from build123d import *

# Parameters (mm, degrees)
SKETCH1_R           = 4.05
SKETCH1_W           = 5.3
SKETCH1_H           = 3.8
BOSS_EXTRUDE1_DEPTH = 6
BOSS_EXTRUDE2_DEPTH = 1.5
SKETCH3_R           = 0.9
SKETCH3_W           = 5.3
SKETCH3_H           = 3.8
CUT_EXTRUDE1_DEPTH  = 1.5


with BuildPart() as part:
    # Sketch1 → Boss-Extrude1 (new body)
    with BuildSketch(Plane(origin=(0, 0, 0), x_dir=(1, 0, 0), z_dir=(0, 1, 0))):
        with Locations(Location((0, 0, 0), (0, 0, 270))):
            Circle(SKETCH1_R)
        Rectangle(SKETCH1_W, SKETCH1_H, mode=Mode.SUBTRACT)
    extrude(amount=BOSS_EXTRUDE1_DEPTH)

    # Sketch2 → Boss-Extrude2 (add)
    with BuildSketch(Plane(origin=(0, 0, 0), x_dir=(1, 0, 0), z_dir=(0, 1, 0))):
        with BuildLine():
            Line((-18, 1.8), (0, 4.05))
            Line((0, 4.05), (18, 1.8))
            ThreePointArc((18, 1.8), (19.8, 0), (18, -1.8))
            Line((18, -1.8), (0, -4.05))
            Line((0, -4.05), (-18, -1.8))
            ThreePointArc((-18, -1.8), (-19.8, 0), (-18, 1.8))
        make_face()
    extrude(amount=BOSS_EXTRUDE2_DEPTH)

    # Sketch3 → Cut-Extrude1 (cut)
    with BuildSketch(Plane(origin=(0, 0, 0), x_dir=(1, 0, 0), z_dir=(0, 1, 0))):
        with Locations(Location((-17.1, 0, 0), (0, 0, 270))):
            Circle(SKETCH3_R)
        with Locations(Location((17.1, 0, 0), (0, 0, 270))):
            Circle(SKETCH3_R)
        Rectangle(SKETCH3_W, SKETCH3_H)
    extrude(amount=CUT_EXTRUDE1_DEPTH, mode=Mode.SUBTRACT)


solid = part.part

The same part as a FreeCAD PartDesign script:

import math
import FreeCAD as App
import Part
import Sketcher

V = App.Vector

doc = App.newDocument("Part")
params = doc.addObject("Spreadsheet::Sheet", "Params")
for row, (alias, value) in enumerate([
    ("sketch1_diameter", "8.1 mm"),
    ("sketch1_width", "5.3 mm"),
    ("sketch1_height", "3.8 mm"),
    ("pad1_length", "6 mm"),
    ("sketch2_radius", "1.8 mm"),
    ("pad2_length", "1.5 mm"),
    ("sketch3_diameter", "1.8 mm"),
    ("sketch3_width", "5.3 mm"),
    ("sketch3_height", "3.8 mm"),
    ("pocket1_length", "1.5 mm"),
], start=1):
    params.set(f"A{row}", alias)
    params.set(f"B{row}", "=" + value)
    params.setAlias(f"B{row}", alias)

body = doc.addObject("PartDesign::Body", "Body")

# Sketch on XZ plane
sketch1 = body.newObject("Sketcher::SketchObject", "Sketch")
sketch1.AttachmentSupport = (doc.getObject("XZ_Plane"), [""])
sketch1.MapMode = "FlatFace"
sketch1.addGeometry(Part.Circle(V(0, 0, 0), V(0, 0, 1), 4.05), False)
sketch1.addGeometry(Part.LineSegment(V(2.65, 1.9, 0), V(-2.65, 1.9, 0)), False)
sketch1.addGeometry(Part.LineSegment(V(-2.65, 1.9, 0), V(-2.65, -1.9, 0)), False)
sketch1.addGeometry(Part.LineSegment(V(-2.65, -1.9, 0), V(2.65, -1.9, 0)), False)
sketch1.addGeometry(Part.LineSegment(V(2.65, -1.9, 0), V(2.65, 1.9, 0)), False)
sketch1.addConstraint(Sketcher.Constraint("Coincident", 1, 2, 2, 1))
sketch1.addConstraint(Sketcher.Constraint("Coincident", 2, 2, 3, 1))
sketch1.addConstraint(Sketcher.Constraint("Coincident", 3, 2, 4, 1))
sketch1.addConstraint(Sketcher.Constraint("Coincident", 4, 2, 1, 1))
sketch1.addConstraint(Sketcher.Constraint("Horizontal", 1))
sketch1.addConstraint(Sketcher.Constraint("Vertical", 2))
sketch1.addConstraint(Sketcher.Constraint("Horizontal", 3))
sketch1.addConstraint(Sketcher.Constraint("Vertical", 4))
sketch1.addConstraint(Sketcher.Constraint("Coincident", 0, 3, -1, 1))
sketch1.addConstraint(Sketcher.Constraint("Symmetric", 1, 2, 3, 2, -1, 1))
sketch1.addConstraint(Sketcher.Constraint("Diameter", 0, 8.1))
sketch1.addConstraint(Sketcher.Constraint("DistanceX", 1, 2, 1, 1, 5.3))
sketch1.addConstraint(Sketcher.Constraint("DistanceY", 2, 2, 2, 1, 3.8))
sketch1.setExpression("Constraints[10]", "Params.sketch1_diameter")
sketch1.setExpression("Constraints[11]", "Params.sketch1_width")
sketch1.setExpression("Constraints[12]", "Params.sketch1_height")
pad1 = body.newObject("PartDesign::Pad", "Pad")
pad1.Profile = sketch1
pad1.setExpression("Length", "Params.pad1_length")
pad1.Reversed = True

# Sketch on XZ plane
sketch2 = body.newObject("Sketcher::SketchObject", "Sketch001")
sketch2.AttachmentSupport = (doc.getObject("XZ_Plane"), [""])
sketch2.MapMode = "FlatFace"
sketch2.addGeometry(Part.LineSegment(V(0, -4.05, 0), V(-18, -1.8, 0)), False)
sketch2.addGeometry(Part.ArcOfCircle(Part.Circle(V(-18, 0, 0), V(0, 0, 1), 1.8), math.radians(90), math.radians(270)), False)
sketch2.addGeometry(Part.LineSegment(V(-18, 1.8, 0), V(0, 4.05, 0)), False)
sketch2.addGeometry(Part.LineSegment(V(0, 4.05, 0), V(18, 1.8, 0)), False)
sketch2.addGeometry(Part.ArcOfCircle(Part.Circle(V(18, 0, 0), V(0, 0, 1), 1.8), math.radians(-90), math.radians(90)), False)
sketch2.addGeometry(Part.LineSegment(V(18, -1.8, 0), V(0, -4.05, 0)), False)
sketch2.addConstraint(Sketcher.Constraint("Coincident", 0, 2, 1, 2))
sketch2.addConstraint(Sketcher.Constraint("Coincident", 1, 1, 2, 1))
sketch2.addConstraint(Sketcher.Constraint("Coincident", 2, 2, 3, 1))
sketch2.addConstraint(Sketcher.Constraint("Coincident", 3, 2, 4, 2))
sketch2.addConstraint(Sketcher.Constraint("Coincident", 4, 1, 5, 1))
sketch2.addConstraint(Sketcher.Constraint("Coincident", 5, 2, 0, 1))
sketch2.addConstraint(Sketcher.Constraint("Equal", 1, 4))
sketch2.addConstraint(Sketcher.Constraint("Symmetric", 1, 3, 4, 3, -1, 1))
sketch2.addConstraint(Sketcher.Constraint("Symmetric", 2, 2, 5, 2, -1, 1))
sketch2.addConstraint(Sketcher.Constraint("Symmetric", 1, 1, 3, 2, -2))
sketch2.addConstraint(Sketcher.Constraint("PointOnObject", 2, 2, -2))
sketch2.addConstraint(Sketcher.Constraint("Parallel", 0, 3))
sketch2.addConstraint(Sketcher.Constraint("Parallel", 2, 5))
sketch2.addConstraint(Sketcher.Constraint("Vertical", 1, 3, 0, 2))
sketch2.addConstraint(Sketcher.Constraint("Radius", 1, 1.8))
sketch2.addConstraint(Sketcher.Constraint("DistanceX", 1, 3, -1, 1, 18.0))
sketch2.addConstraint(Sketcher.Constraint("DistanceY", 5, 2, 2, 2, 8.1))
sketch2.setExpression("Constraints[14]", "Params.sketch2_radius")
pad2 = body.newObject("PartDesign::Pad", "Pad001")
pad2.Profile = sketch2
pad2.setExpression("Length", "Params.pad2_length")
pad2.Reversed = True

# Sketch on XZ plane
sketch3 = body.newObject("Sketcher::SketchObject", "Sketch002")
sketch3.AttachmentSupport = (doc.getObject("XZ_Plane"), [""])
sketch3.MapMode = "FlatFace"
sketch3.addGeometry(Part.Circle(V(-17.1, 0, 0), V(0, 0, 1), 0.9), False)
sketch3.addGeometry(Part.Circle(V(17.1, 0, 0), V(0, 0, 1), 0.9), False)
sketch3.addGeometry(Part.LineSegment(V(-2.65, -1.9, 0), V(-2.65, 1.9, 0)), False)
sketch3.addGeometry(Part.LineSegment(V(-2.65, 1.9, 0), V(2.65, 1.9, 0)), False)
sketch3.addGeometry(Part.LineSegment(V(2.65, 1.9, 0), V(2.65, -1.9, 0)), False)
sketch3.addGeometry(Part.LineSegment(V(2.65, -1.9, 0), V(-2.65, -1.9, 0)), False)
sketch3.addConstraint(Sketcher.Constraint("Coincident", 2, 2, 3, 1))
sketch3.addConstraint(Sketcher.Constraint("Coincident", 3, 2, 4, 1))
sketch3.addConstraint(Sketcher.Constraint("Coincident", 4, 2, 5, 1))
sketch3.addConstraint(Sketcher.Constraint("Coincident", 5, 2, 2, 1))
sketch3.addConstraint(Sketcher.Constraint("Vertical", 2))
sketch3.addConstraint(Sketcher.Constraint("Horizontal", 3))
sketch3.addConstraint(Sketcher.Constraint("Vertical", 4))
sketch3.addConstraint(Sketcher.Constraint("Horizontal", 5))
sketch3.addConstraint(Sketcher.Constraint("Equal", 0, 1))
sketch3.addConstraint(Sketcher.Constraint("Symmetric", 0, 3, 1, 3, -1, 1))
sketch3.addConstraint(Sketcher.Constraint("Symmetric", 2, 2, 4, 2, -1, 1))
sketch3.addConstraint(Sketcher.Constraint("PointOnObject", 0, 3, -1))
sketch3.addConstraint(Sketcher.Constraint("Diameter", 0, 1.8))
sketch3.addConstraint(Sketcher.Constraint("DistanceX", 3, 1, 3, 2, 5.3))
sketch3.addConstraint(Sketcher.Constraint("DistanceY", 2, 1, 2, 2, 3.8))
sketch3.addConstraint(Sketcher.Constraint("DistanceX", 0, 3, -1, 1, 17.1))
sketch3.setExpression("Constraints[12]", "Params.sketch3_diameter")
sketch3.setExpression("Constraints[13]", "Params.sketch3_width")
sketch3.setExpression("Constraints[14]", "Params.sketch3_height")
pocket1 = body.newObject("PartDesign::Pocket", "Pocket")
pocket1.Profile = sketch3
pocket1.setExpression("Length", "Params.pocket1_length")

doc.recompute()
